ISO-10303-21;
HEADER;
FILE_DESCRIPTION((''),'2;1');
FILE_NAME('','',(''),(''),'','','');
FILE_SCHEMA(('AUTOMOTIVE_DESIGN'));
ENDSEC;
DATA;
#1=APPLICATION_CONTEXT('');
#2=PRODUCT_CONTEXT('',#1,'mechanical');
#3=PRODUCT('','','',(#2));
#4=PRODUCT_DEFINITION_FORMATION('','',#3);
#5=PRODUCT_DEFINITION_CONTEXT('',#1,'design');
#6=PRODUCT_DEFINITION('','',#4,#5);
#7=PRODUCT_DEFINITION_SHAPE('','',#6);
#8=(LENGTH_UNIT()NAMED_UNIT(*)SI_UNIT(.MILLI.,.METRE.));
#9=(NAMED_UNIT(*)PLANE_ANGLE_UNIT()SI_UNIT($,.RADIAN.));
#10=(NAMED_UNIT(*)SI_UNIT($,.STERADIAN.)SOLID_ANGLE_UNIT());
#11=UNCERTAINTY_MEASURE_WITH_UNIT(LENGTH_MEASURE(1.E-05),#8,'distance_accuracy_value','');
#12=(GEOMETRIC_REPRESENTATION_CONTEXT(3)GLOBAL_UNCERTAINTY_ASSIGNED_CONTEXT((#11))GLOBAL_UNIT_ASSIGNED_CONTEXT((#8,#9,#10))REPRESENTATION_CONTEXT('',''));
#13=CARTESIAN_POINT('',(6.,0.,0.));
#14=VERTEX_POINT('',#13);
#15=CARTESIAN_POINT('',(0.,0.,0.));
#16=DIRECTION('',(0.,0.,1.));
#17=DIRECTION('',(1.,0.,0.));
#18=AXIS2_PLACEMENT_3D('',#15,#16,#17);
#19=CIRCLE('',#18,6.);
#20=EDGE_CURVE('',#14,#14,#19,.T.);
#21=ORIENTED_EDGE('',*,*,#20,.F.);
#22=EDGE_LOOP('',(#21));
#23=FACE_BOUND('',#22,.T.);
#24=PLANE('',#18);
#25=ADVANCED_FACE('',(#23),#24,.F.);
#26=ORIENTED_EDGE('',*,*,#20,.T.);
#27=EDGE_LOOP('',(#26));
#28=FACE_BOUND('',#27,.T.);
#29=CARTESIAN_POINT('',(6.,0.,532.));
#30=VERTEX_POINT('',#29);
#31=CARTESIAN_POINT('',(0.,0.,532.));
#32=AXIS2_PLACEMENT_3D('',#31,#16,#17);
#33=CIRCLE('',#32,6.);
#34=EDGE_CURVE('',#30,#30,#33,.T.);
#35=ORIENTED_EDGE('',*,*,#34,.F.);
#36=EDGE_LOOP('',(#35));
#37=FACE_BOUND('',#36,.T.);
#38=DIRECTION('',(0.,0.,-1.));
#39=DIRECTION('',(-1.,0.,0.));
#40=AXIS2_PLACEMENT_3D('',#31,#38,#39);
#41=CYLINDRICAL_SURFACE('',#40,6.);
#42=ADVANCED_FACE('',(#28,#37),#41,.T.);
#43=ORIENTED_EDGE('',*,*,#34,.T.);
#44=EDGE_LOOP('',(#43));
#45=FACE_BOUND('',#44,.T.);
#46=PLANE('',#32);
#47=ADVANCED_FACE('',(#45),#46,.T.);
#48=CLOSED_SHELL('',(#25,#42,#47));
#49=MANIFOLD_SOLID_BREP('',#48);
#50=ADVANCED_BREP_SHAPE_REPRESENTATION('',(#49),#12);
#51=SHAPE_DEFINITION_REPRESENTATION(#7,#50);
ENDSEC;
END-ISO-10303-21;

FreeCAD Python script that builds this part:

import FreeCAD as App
import Part
import Sketcher

doc = App.newDocument("Part")
params = doc.addObject("Spreadsheet::Sheet", "Params")
for row, (alias, value) in enumerate([
    ("sketch1_diameter", "12 mm"),
    ("pad1_length", "532 mm"),
], start=1):
    params.set(f"A{row}", alias)
    params.set(f"B{row}", "=" + value)
    params.setAlias(f"B{row}", alias)

body = doc.addObject("PartDesign::Body", "Body")

sketch1 = body.newObject("Sketcher::SketchObject", "Sketch")
sketch1.AttachmentSupport = (doc.getObject("XY_Plane"), [""])
sketch1.MapMode = "FlatFace"
sketch1.addGeometry(Part.Circle(App.Vector(0, 0, 0), App.Vector(0, 0, 1), 6), False)
sketch1.addConstraint(Sketcher.Constraint("Coincident", 0, 3, -1, 1))
sketch1.addConstraint(Sketcher.Constraint("Diameter", 0, 12.0))
sketch1.setExpression("Constraints[1]", "Params.sketch1_diameter")
pad1 = body.newObject("PartDesign::Pad", "Pad")
pad1.Profile = sketch1
pad1.setExpression("Length", "Params.pad1_length")

doc.recompute()
